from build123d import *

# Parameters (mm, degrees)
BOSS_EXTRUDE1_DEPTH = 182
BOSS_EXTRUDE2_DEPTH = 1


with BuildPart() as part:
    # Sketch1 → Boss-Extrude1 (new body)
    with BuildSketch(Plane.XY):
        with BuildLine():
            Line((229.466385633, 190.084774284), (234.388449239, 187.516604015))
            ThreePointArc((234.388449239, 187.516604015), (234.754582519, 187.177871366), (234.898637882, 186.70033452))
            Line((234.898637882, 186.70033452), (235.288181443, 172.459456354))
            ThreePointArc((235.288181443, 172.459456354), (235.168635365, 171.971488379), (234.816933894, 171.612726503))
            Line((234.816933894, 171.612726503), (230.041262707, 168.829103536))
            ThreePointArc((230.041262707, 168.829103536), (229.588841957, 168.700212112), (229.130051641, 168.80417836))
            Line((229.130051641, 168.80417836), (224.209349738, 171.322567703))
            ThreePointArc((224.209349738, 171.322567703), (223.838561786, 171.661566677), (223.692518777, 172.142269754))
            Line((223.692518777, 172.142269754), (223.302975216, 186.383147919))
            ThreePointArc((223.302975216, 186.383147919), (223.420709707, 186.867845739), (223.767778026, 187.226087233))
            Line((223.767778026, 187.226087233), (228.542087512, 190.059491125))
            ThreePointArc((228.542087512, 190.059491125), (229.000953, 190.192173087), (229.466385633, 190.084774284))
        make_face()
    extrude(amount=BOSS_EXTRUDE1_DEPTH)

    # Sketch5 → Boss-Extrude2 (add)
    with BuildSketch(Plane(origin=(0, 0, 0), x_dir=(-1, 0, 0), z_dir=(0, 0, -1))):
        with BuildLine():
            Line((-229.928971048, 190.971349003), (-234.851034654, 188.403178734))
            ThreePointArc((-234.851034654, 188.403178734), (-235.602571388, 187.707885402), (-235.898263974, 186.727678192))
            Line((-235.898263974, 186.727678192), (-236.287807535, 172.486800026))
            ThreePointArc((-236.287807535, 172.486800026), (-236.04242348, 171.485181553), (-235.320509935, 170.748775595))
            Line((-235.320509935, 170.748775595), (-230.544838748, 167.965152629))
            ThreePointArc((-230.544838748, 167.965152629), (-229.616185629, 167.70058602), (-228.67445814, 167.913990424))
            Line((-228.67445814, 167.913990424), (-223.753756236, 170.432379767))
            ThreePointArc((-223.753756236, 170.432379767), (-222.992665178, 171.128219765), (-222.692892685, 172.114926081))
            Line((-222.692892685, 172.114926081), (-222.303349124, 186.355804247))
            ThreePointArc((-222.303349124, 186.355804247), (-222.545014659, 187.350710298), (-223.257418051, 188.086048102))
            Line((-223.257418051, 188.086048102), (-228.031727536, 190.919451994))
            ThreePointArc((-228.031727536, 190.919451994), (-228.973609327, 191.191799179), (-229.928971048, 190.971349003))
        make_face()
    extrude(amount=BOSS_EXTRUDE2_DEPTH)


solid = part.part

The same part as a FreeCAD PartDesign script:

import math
import FreeCAD as App
import Part
import Sketcher

V = App.Vector

doc = App.newDocument("Part")
body = doc.addObject("PartDesign::Body", "Body")

# Sketch on XY plane
sketch1 = body.newObject("Sketcher::SketchObject", "Sketch")
sketch1.AttachmentSupport = (doc.getObject("XY_Plane"), [""])
sketch1.MapMode = "FlatFace"
sketch1.addGeometry([
    Part.LineSegment(V(234.4, 187.5, 0), V(229.5, 190.1, 0)),  # 0
    Part.ArcOfCircle(Part.Circle(V(229, 189.2, 0), V(0, 0, 1), 1), math.radians(62), math.radians(121)),  # 1
    Part.LineSegment(V(228.5, 190.1, 0), V(223.8, 187.2, 0)),  # 2
    Part.ArcOfCircle(Part.Circle(V(224.3, 186.4, 0), V(0, 0, 1), 0.9), math.radians(121), math.radians(182)),  # 3
    Part.LineSegment(V(223.3, 186.4, 0), V(223.7, 172.1, 0)),  # 4
    Part.ArcOfCircle(Part.Circle(V(224.6, 172.2, 0), V(0, 0, 1), 0.9), math.radians(-178), math.radians(-117)),  # 5
    Part.LineSegment(V(224.2, 171.3, 0), V(229.1, 168.8, 0)),  # 6
    Part.ArcOfCircle(Part.Circle(V(229.6, 169.6, 0), V(0, 0, 1), 1), math.radians(-117), math.radians(-60)),  # 7
    Part.LineSegment(V(230, 168.8, 0), V(234.8, 171.6, 0)),  # 8
    Part.ArcOfCircle(Part.Circle(V(234.3, 172.4, 0), V(0, 0, 1), 0.9), math.radians(-60), math.radians(2)),  # 9
    Part.LineSegment(V(235.3, 172.5, 0), V(234.9, 186.7, 0)),  # 10
    Part.ArcOfCircle(Part.Circle(V(233.9, 186.7, 0), V(0, 0, 1), 1), math.radians(2), math.radians(62)),  # 11
], False)
sketch1.addConstraint([
    Sketcher.Constraint("Tangent", 0, 2, 1, 1),
    Sketcher.Constraint("Tangent", 1, 2, 2, 1),
    Sketcher.Constraint("Tangent", 2, 2, 3, 1),
    Sketcher.Constraint("Tangent", 3, 2, 4, 1),
    Sketcher.Constraint("Tangent", 4, 2, 5, 1),
    Sketcher.Constraint("Tangent", 5, 2, 6, 1),
    Sketcher.Constraint("Tangent", 6, 2, 7, 1),
    Sketcher.Constraint("Tangent", 7, 2, 8, 1),
    Sketcher.Constraint("Tangent", 8, 2, 9, 1),
    Sketcher.Constraint("Tangent", 9, 2, 10, 1),
    Sketcher.Constraint("Tangent", 10, 2, 11, 1),
    Sketcher.Constraint("Tangent", 11, 2, 0, 1),
    Sketcher.Constraint("Equal", 1, 3),
    Sketcher.Constraint("Equal", 3, 5),
    Sketcher.Constraint("Equal", 5, 7),
    Sketcher.Constraint("Equal", 7, 9),
    Sketcher.Constraint("Equal", 9, 11),
    Sketcher.Constraint("Parallel", 4, 10),
    Sketcher.Constraint("Equal", 0, 2),
    Sketcher.Constraint("Equal", 6, 8),
    Sketcher.Constraint("Equal", 4, 10),
    Sketcher.Constraint("Radius", 1, 0.95),
    Sketcher.Constraint("DistanceX", 5, 3, 7, 3, 4.920702),
    Sketcher.Constraint("DistanceY", 7, 3, 11, 3, 17.024501),
    Sketcher.Constraint("DistanceX", 1, 2, 0, 2, 0.924298),
    Sketcher.Constraint("DistanceX", 4, 2, 3, 3, 0.560101),
    Sketcher.Constraint("DistanceY", 6, 2, 9, 3, 3.629302),
    Sketcher.Constraint("DistanceX", 5, 3, 7, 2, 5.399099),
    Sketcher.Constraint("DistanceX", -1, 1, 1, 3, 229.026929),
    Sketcher.Constraint("DistanceY", -1, 1, 1, 3, 189.242528),
])
pad1 = body.newObject("PartDesign::Pad", "Pad")
pad1.Profile = sketch1
pad1.Length = 182

# Sketch on XY plane
sketch2 = body.newObject("Sketcher::SketchObject", "Sketch001")
sketch2.AttachmentSupport = (doc.getObject("XY_Plane"), [""])
sketch2.MapMode = "FlatFace"
sketch2.addGeometry([
    Part.LineSegment(V(229.9, 191, 0), V(234.9, 188.4, 0)),  # 0
    Part.ArcOfCircle(Part.Circle(V(233.9, 186.7, 0), V(0, 0, 1), 2), math.radians(2), math.radians(62)),  # 1
    Part.LineSegment(V(235.9, 186.7, 0), V(236.3, 172.5, 0)),  # 2
    Part.ArcOfCircle(Part.Circle(V(234.3, 172.4, 0), V(0, 0, 1), 2), math.radians(-60), math.radians(2)),  # 3
    Part.LineSegment(V(235.3, 170.7, 0), V(230.5, 168, 0)),  # 4
    Part.ArcOfCircle(Part.Circle(V(229.6, 169.6, 0), V(0, 0, 1), 2), math.radians(-117), math.radians(-60)),  # 5
    Part.LineSegment(V(228.7, 167.9, 0), V(223.8, 170.4, 0)),  # 6
    Part.ArcOfCircle(Part.Circle(V(224.6, 172.2, 0), V(0, 0, 1), 2), math.radians(-178), math.radians(-117)),  # 7
    Part.LineSegment(V(222.7, 172.1, 0), V(222.3, 186.4, 0)),  # 8
    Part.ArcOfCircle(Part.Circle(V(224.3, 186.4, 0), V(0, 0, 1), 2), math.radians(121), math.radians(182)),  # 9
    Part.LineSegment(V(223.3, 188.1, 0), V(228, 190.9, 0)),  # 10
    Part.ArcOfCircle(Part.Circle(V(229, 189.2, 0), V(0, 0, 1), 2), math.radians(62), math.radians(121)),  # 11
], False)
sketch2.addConstraint([
    Sketcher.Constraint("Tangent", 0, 2, 1, 2),
    Sketcher.Constraint("Tangent", 1, 1, 2, 1),
    Sketcher.Constraint("Tangent", 2, 2, 3, 2),
    Sketcher.Constraint("Tangent", 3, 1, 4, 1),
    Sketcher.Constraint("Tangent", 4, 2, 5, 2),
    Sketcher.Constraint("Tangent", 5, 1, 6, 1),
    Sketcher.Constraint("Tangent", 6, 2, 7, 2),
    Sketcher.Constraint("Tangent", 7, 1, 8, 1),
    Sketcher.Constraint("Tangent", 8, 2, 9, 2),
    Sketcher.Constraint("Tangent", 9, 1, 10, 1),
    Sketcher.Constraint("Tangent", 10, 2, 11, 2),
    Sketcher.Constraint("Tangent", 11, 1, 0, 1),
    Sketcher.Constraint("Equal", 1, 3),
    Sketcher.Constraint("Equal", 3, 5),
    Sketcher.Constraint("Equal", 5, 7),
    Sketcher.Constraint("Equal", 7, 9),
    Sketcher.Constraint("Equal", 9, 11),
    Sketcher.Constraint("Parallel", 2, 8),
    Sketcher.Constraint("Equal", 4, 6),
    Sketcher.Constraint("Equal", 2, 8),
    Sketcher.Constraint("Equal", 0, 10),
    Sketcher.Constraint("Radius", 1, 1.95),
    Sketcher.Constraint("DistanceY", -1, 1, 2, 2, 172.4868),
    Sketcher.Constraint("DistanceY", 5, 3, 1, 3, 17.024501),
    Sketcher.Constraint("DistanceX", 7, 3, 5, 3, 4.920702),
    Sketcher.Constraint("DistanceY", 3, 3, 0, 2, 15.969699),
    Sketcher.Constraint("DistanceY", 1, 1, 0, 2, 1.675501),
    Sketcher.Constraint("DistanceY", 6, 2, 3, 3, 2.0011),
    Sketcher.Constraint("DistanceX", 9, 1, 9, 3, 0.995202),
    Sketcher.Constraint("DistanceX", -1, 1, 9, 3, 224.25262),
])
pad2 = body.newObject("PartDesign::Pad", "Pad001")
pad2.Profile = sketch2
pad2.Length = 1
pad2.Reversed = True

doc.recompute()
